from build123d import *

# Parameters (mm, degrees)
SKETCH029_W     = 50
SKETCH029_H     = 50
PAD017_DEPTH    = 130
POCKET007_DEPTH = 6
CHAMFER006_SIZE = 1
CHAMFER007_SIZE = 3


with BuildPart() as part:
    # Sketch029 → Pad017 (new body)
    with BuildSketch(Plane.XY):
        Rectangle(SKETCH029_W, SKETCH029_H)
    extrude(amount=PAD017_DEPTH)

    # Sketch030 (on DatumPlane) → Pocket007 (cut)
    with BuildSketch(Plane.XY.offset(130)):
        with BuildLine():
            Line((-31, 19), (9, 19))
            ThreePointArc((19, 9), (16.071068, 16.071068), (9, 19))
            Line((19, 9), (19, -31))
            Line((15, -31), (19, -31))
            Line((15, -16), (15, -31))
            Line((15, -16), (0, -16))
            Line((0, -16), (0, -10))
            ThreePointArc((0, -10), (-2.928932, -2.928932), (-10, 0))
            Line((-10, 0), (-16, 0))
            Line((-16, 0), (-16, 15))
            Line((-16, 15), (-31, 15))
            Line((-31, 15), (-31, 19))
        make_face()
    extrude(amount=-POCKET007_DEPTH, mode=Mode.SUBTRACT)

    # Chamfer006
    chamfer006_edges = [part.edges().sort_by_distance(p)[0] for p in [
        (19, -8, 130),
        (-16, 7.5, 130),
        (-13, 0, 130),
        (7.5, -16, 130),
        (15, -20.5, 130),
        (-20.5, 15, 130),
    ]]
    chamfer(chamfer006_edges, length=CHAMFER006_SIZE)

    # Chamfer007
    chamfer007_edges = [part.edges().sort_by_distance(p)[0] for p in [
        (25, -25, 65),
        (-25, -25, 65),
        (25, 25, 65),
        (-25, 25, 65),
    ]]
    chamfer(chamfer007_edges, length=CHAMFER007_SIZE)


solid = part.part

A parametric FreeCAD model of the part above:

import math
import FreeCAD as App
import Part
import Sketcher
Q = App.Units.Quantity


def edges_at(feature, points):
    """Names of the edges that pass closest to the given points."""
    edges = feature.Shape.Edges
    near = lambda p: min(range(len(edges)), key=lambda i: edges[i].distToShape(Part.Vertex(*p))[0])
    return sorted({f"Edge{near(p) + 1}" for p in points})


def add_polygon(sketch, points):
    """Adds a closed chain of lines whose ends are joined by coincident constraints."""
    first, n = sketch.GeometryCount, len(points)
    for a, b in zip(points, points[1:] + points[:1]):
        sketch.addGeometry(Part.LineSegment(App.Vector(*a, 0), App.Vector(*b, 0)), False)
    for i in range(n):
        sketch.addConstraint(Sketcher.Constraint("Coincident", first + i, 2, first + (i + 1) % n, 1))

doc = App.newDocument("Part")
body = doc.addObject("PartDesign::Body", "Body")

# Sketch on XY plane
sketch1 = body.newObject("Sketcher::SketchObject", "Sketch")
sketch1.AttachmentSupport = (doc.getObject("XY_Plane"), [""])
sketch1.MapMode = "FlatFace"
add_polygon(sketch1, [(-25, 25), (-25, -25), (25, -25), (25, 25)])  # lines 0-3
sketch1.addConstraint(Sketcher.Constraint("Vertical", 0))
sketch1.addConstraint(Sketcher.Constraint("Horizontal", 1))
sketch1.addConstraint(Sketcher.Constraint("Vertical", 2))
sketch1.addConstraint(Sketcher.Constraint("Horizontal", 3))
sketch1.addConstraint(Sketcher.Constraint("Symmetric", 0, 2, 2, 2, -1, 1))
sketch1.addConstraint(Sketcher.Constraint("Equal", 3, 0))
sketch1.addConstraint(Sketcher.Constraint("DistanceX", 1, 1, 1, 2, Q("50 mm")))
pad1 = body.newObject("PartDesign::Pad", "Pad")
pad1.Profile = sketch1
pad1.Length = 130

# Sketch on XY plane
sketch2 = body.newObject("Sketcher::SketchObject", "Sketch001")
sketch2.AttachmentSupport = (doc.getObject("XY_Plane"), [""])
sketch2.MapMode = "FlatFace"
sketch2.AttachmentOffset = App.Placement(App.Vector(0, 0, 130), App.Rotation())
sketch2.addGeometry(Part.LineSegment(App.Vector(9, 19, 0), App.Vector(-31, 19, 0)), False)
sketch2.addGeometry(Part.LineSegment(App.Vector(-31, 19, 0), App.Vector(-31, 15, 0)), False)
sketch2.addGeometry(Part.LineSegment(App.Vector(-31, 15, 0), App.Vector(-16, 15, 0)), False)
sketch2.addGeometry(Part.LineSegment(App.Vector(-16, 15, 0), App.Vector(-16, 0, 0)), False)
sketch2.addGeometry(Part.LineSegment(App.Vector(-16, 0, 0), App.Vector(-10, 0, 0)), False)
sketch2.addGeometry(Part.ArcOfCircle(Part.Circle(App.Vector(-9.999999, -9.999999, 0), App.Vector(0, 0, 1), 9.999999), math.radians(-0.000004), math.radians(90.000004)), False)
sketch2.addGeometry(Part.LineSegment(App.Vector(0, -10, 0), App.Vector(0, -16, 0)), False)
sketch2.addGeometry(Part.LineSegment(App.Vector(0, -16, 0), App.Vector(15, -16, 0)), False)
sketch2.addGeometry(Part.LineSegment(App.Vector(15, -16, 0), App.Vector(15, -31, 0)), False)
sketch2.addGeometry(Part.LineSegment(App.Vector(15, -31, 0), App.Vector(19, -31, 0)), False)
sketch2.addGeometry(Part.LineSegment(App.Vector(19, -31, 0), App.Vector(19, 9, 0)), False)
sketch2.addGeometry(Part.ArcOfCircle(Part.Circle(App.Vector(9.000001, 9.000001, 0), App.Vector(0, 0, 1), 9.999999), math.radians(-0.000004), math.radians(90.000004)), False)
sketch2.addConstraint(Sketcher.Constraint("Coincident", 0, 2, 1, 1))
sketch2.addConstraint(Sketcher.Constraint("Coincident", 1, 2, 2, 1))
sketch2.addConstraint(Sketcher.Constraint("Coincident", 2, 2, 3, 1))
sketch2.addConstraint(Sketcher.Constraint("Coincident", 3, 2, 4, 1))
sketch2.addConstraint(Sketcher.Constraint("Tangent", 4, 2, 5, 2))
sketch2.addConstraint(Sketcher.Constraint("Tangent", 5, 1, 6, 1))
sketch2.addConstraint(Sketcher.Constraint("Coincident", 6, 2, 7, 1))
sketch2.addConstraint(Sketcher.Constraint("Coincident", 7, 2, 8, 1))
sketch2.addConstraint(Sketcher.Constraint("Coincident", 8, 2, 9, 1))
sketch2.addConstraint(Sketcher.Constraint("Coincident", 9, 2, 10, 1))
sketch2.addConstraint(Sketcher.Constraint("Tangent", 10, 2, 11, 1))
sketch2.addConstraint(Sketcher.Constraint("Tangent", 11, 2, 0, 1))
sketch2.addConstraint(Sketcher.Constraint("Horizontal", 0))
sketch2.addConstraint(Sketcher.Constraint("Vertical", 1))
sketch2.addConstraint(Sketcher.Constraint("Horizontal", 2))
sketch2.addConstraint(Sketcher.Constraint("Vertical", 3))
sketch2.addConstraint(Sketcher.Constraint("Horizontal", 4))
sketch2.addConstraint(Sketcher.Constraint("Vertical", 6))
sketch2.addConstraint(Sketcher.Constraint("Horizontal", 7))
sketch2.addConstraint(Sketcher.Constraint("Vertical", 8))
sketch2.addConstraint(Sketcher.Constraint("Horizontal", 9))
sketch2.addConstraint(Sketcher.Constraint("Vertical", 10))
sketch2.addConstraint(Sketcher.Constraint("Equal", 5, 11))
sketch2.addConstraint(Sketcher.Constraint("PointOnObject", 3, 2, -1))
sketch2.addConstraint(Sketcher.Constraint("PointOnObject", 5, 1, -2))
sketch2.addConstraint(Sketcher.Constraint("Equal", 2, 7))
sketch2.addConstraint(Sketcher.Constraint("Equal", 9, 1))
sketch2.addConstraint(Sketcher.Constraint("Equal", 7, 3))
sketch2.addConstraint(Sketcher.Constraint("Equal", 4, 6))
sketch2.addConstraint(Sketcher.Constraint("Equal", 3, 8))
sketch2.addConstraint(Sketcher.Constraint("Radius", 5, Q("9.999999 mm")))
sketch2.addConstraint(Sketcher.Constraint("DistanceX", 0, 2, 0, 1, Q("40 mm")))
sketch2.addConstraint(Sketcher.Constraint("DistanceX", 2, 1, 2, 2, Q("15 mm")))
sketch2.addConstraint(Sketcher.Constraint("DistanceX", 4, 1, 4, 2, Q("6 mm")))
pocket1 = body.newObject("PartDesign::Pocket", "Pocket")
pocket1.Profile = sketch2
pocket1.Length = 6
doc.recompute()

chamfer = body.newObject("PartDesign::Chamfer", "Chamfer")
chamfer.Base = (pocket1, edges_at(pocket1, [
    (19, -8, 130),
    (-16, 7.5, 130),
    (-13, 0, 130),
    (7.5, -16, 130),
    (15, -20.5, 130),
    (-20.5, 15, 130),
]))
chamfer.Size = 1
doc.recompute()

chamfer2 = body.newObject("PartDesign::Chamfer", "Chamfer001")
chamfer2.Base = (chamfer, edges_at(chamfer, [
    (25, -25, 65),
    (-25, -25, 65),
    (25, 25, 65),
    (-25, 25, 65),
]))
chamfer2.Size = 3

doc.recompute()
